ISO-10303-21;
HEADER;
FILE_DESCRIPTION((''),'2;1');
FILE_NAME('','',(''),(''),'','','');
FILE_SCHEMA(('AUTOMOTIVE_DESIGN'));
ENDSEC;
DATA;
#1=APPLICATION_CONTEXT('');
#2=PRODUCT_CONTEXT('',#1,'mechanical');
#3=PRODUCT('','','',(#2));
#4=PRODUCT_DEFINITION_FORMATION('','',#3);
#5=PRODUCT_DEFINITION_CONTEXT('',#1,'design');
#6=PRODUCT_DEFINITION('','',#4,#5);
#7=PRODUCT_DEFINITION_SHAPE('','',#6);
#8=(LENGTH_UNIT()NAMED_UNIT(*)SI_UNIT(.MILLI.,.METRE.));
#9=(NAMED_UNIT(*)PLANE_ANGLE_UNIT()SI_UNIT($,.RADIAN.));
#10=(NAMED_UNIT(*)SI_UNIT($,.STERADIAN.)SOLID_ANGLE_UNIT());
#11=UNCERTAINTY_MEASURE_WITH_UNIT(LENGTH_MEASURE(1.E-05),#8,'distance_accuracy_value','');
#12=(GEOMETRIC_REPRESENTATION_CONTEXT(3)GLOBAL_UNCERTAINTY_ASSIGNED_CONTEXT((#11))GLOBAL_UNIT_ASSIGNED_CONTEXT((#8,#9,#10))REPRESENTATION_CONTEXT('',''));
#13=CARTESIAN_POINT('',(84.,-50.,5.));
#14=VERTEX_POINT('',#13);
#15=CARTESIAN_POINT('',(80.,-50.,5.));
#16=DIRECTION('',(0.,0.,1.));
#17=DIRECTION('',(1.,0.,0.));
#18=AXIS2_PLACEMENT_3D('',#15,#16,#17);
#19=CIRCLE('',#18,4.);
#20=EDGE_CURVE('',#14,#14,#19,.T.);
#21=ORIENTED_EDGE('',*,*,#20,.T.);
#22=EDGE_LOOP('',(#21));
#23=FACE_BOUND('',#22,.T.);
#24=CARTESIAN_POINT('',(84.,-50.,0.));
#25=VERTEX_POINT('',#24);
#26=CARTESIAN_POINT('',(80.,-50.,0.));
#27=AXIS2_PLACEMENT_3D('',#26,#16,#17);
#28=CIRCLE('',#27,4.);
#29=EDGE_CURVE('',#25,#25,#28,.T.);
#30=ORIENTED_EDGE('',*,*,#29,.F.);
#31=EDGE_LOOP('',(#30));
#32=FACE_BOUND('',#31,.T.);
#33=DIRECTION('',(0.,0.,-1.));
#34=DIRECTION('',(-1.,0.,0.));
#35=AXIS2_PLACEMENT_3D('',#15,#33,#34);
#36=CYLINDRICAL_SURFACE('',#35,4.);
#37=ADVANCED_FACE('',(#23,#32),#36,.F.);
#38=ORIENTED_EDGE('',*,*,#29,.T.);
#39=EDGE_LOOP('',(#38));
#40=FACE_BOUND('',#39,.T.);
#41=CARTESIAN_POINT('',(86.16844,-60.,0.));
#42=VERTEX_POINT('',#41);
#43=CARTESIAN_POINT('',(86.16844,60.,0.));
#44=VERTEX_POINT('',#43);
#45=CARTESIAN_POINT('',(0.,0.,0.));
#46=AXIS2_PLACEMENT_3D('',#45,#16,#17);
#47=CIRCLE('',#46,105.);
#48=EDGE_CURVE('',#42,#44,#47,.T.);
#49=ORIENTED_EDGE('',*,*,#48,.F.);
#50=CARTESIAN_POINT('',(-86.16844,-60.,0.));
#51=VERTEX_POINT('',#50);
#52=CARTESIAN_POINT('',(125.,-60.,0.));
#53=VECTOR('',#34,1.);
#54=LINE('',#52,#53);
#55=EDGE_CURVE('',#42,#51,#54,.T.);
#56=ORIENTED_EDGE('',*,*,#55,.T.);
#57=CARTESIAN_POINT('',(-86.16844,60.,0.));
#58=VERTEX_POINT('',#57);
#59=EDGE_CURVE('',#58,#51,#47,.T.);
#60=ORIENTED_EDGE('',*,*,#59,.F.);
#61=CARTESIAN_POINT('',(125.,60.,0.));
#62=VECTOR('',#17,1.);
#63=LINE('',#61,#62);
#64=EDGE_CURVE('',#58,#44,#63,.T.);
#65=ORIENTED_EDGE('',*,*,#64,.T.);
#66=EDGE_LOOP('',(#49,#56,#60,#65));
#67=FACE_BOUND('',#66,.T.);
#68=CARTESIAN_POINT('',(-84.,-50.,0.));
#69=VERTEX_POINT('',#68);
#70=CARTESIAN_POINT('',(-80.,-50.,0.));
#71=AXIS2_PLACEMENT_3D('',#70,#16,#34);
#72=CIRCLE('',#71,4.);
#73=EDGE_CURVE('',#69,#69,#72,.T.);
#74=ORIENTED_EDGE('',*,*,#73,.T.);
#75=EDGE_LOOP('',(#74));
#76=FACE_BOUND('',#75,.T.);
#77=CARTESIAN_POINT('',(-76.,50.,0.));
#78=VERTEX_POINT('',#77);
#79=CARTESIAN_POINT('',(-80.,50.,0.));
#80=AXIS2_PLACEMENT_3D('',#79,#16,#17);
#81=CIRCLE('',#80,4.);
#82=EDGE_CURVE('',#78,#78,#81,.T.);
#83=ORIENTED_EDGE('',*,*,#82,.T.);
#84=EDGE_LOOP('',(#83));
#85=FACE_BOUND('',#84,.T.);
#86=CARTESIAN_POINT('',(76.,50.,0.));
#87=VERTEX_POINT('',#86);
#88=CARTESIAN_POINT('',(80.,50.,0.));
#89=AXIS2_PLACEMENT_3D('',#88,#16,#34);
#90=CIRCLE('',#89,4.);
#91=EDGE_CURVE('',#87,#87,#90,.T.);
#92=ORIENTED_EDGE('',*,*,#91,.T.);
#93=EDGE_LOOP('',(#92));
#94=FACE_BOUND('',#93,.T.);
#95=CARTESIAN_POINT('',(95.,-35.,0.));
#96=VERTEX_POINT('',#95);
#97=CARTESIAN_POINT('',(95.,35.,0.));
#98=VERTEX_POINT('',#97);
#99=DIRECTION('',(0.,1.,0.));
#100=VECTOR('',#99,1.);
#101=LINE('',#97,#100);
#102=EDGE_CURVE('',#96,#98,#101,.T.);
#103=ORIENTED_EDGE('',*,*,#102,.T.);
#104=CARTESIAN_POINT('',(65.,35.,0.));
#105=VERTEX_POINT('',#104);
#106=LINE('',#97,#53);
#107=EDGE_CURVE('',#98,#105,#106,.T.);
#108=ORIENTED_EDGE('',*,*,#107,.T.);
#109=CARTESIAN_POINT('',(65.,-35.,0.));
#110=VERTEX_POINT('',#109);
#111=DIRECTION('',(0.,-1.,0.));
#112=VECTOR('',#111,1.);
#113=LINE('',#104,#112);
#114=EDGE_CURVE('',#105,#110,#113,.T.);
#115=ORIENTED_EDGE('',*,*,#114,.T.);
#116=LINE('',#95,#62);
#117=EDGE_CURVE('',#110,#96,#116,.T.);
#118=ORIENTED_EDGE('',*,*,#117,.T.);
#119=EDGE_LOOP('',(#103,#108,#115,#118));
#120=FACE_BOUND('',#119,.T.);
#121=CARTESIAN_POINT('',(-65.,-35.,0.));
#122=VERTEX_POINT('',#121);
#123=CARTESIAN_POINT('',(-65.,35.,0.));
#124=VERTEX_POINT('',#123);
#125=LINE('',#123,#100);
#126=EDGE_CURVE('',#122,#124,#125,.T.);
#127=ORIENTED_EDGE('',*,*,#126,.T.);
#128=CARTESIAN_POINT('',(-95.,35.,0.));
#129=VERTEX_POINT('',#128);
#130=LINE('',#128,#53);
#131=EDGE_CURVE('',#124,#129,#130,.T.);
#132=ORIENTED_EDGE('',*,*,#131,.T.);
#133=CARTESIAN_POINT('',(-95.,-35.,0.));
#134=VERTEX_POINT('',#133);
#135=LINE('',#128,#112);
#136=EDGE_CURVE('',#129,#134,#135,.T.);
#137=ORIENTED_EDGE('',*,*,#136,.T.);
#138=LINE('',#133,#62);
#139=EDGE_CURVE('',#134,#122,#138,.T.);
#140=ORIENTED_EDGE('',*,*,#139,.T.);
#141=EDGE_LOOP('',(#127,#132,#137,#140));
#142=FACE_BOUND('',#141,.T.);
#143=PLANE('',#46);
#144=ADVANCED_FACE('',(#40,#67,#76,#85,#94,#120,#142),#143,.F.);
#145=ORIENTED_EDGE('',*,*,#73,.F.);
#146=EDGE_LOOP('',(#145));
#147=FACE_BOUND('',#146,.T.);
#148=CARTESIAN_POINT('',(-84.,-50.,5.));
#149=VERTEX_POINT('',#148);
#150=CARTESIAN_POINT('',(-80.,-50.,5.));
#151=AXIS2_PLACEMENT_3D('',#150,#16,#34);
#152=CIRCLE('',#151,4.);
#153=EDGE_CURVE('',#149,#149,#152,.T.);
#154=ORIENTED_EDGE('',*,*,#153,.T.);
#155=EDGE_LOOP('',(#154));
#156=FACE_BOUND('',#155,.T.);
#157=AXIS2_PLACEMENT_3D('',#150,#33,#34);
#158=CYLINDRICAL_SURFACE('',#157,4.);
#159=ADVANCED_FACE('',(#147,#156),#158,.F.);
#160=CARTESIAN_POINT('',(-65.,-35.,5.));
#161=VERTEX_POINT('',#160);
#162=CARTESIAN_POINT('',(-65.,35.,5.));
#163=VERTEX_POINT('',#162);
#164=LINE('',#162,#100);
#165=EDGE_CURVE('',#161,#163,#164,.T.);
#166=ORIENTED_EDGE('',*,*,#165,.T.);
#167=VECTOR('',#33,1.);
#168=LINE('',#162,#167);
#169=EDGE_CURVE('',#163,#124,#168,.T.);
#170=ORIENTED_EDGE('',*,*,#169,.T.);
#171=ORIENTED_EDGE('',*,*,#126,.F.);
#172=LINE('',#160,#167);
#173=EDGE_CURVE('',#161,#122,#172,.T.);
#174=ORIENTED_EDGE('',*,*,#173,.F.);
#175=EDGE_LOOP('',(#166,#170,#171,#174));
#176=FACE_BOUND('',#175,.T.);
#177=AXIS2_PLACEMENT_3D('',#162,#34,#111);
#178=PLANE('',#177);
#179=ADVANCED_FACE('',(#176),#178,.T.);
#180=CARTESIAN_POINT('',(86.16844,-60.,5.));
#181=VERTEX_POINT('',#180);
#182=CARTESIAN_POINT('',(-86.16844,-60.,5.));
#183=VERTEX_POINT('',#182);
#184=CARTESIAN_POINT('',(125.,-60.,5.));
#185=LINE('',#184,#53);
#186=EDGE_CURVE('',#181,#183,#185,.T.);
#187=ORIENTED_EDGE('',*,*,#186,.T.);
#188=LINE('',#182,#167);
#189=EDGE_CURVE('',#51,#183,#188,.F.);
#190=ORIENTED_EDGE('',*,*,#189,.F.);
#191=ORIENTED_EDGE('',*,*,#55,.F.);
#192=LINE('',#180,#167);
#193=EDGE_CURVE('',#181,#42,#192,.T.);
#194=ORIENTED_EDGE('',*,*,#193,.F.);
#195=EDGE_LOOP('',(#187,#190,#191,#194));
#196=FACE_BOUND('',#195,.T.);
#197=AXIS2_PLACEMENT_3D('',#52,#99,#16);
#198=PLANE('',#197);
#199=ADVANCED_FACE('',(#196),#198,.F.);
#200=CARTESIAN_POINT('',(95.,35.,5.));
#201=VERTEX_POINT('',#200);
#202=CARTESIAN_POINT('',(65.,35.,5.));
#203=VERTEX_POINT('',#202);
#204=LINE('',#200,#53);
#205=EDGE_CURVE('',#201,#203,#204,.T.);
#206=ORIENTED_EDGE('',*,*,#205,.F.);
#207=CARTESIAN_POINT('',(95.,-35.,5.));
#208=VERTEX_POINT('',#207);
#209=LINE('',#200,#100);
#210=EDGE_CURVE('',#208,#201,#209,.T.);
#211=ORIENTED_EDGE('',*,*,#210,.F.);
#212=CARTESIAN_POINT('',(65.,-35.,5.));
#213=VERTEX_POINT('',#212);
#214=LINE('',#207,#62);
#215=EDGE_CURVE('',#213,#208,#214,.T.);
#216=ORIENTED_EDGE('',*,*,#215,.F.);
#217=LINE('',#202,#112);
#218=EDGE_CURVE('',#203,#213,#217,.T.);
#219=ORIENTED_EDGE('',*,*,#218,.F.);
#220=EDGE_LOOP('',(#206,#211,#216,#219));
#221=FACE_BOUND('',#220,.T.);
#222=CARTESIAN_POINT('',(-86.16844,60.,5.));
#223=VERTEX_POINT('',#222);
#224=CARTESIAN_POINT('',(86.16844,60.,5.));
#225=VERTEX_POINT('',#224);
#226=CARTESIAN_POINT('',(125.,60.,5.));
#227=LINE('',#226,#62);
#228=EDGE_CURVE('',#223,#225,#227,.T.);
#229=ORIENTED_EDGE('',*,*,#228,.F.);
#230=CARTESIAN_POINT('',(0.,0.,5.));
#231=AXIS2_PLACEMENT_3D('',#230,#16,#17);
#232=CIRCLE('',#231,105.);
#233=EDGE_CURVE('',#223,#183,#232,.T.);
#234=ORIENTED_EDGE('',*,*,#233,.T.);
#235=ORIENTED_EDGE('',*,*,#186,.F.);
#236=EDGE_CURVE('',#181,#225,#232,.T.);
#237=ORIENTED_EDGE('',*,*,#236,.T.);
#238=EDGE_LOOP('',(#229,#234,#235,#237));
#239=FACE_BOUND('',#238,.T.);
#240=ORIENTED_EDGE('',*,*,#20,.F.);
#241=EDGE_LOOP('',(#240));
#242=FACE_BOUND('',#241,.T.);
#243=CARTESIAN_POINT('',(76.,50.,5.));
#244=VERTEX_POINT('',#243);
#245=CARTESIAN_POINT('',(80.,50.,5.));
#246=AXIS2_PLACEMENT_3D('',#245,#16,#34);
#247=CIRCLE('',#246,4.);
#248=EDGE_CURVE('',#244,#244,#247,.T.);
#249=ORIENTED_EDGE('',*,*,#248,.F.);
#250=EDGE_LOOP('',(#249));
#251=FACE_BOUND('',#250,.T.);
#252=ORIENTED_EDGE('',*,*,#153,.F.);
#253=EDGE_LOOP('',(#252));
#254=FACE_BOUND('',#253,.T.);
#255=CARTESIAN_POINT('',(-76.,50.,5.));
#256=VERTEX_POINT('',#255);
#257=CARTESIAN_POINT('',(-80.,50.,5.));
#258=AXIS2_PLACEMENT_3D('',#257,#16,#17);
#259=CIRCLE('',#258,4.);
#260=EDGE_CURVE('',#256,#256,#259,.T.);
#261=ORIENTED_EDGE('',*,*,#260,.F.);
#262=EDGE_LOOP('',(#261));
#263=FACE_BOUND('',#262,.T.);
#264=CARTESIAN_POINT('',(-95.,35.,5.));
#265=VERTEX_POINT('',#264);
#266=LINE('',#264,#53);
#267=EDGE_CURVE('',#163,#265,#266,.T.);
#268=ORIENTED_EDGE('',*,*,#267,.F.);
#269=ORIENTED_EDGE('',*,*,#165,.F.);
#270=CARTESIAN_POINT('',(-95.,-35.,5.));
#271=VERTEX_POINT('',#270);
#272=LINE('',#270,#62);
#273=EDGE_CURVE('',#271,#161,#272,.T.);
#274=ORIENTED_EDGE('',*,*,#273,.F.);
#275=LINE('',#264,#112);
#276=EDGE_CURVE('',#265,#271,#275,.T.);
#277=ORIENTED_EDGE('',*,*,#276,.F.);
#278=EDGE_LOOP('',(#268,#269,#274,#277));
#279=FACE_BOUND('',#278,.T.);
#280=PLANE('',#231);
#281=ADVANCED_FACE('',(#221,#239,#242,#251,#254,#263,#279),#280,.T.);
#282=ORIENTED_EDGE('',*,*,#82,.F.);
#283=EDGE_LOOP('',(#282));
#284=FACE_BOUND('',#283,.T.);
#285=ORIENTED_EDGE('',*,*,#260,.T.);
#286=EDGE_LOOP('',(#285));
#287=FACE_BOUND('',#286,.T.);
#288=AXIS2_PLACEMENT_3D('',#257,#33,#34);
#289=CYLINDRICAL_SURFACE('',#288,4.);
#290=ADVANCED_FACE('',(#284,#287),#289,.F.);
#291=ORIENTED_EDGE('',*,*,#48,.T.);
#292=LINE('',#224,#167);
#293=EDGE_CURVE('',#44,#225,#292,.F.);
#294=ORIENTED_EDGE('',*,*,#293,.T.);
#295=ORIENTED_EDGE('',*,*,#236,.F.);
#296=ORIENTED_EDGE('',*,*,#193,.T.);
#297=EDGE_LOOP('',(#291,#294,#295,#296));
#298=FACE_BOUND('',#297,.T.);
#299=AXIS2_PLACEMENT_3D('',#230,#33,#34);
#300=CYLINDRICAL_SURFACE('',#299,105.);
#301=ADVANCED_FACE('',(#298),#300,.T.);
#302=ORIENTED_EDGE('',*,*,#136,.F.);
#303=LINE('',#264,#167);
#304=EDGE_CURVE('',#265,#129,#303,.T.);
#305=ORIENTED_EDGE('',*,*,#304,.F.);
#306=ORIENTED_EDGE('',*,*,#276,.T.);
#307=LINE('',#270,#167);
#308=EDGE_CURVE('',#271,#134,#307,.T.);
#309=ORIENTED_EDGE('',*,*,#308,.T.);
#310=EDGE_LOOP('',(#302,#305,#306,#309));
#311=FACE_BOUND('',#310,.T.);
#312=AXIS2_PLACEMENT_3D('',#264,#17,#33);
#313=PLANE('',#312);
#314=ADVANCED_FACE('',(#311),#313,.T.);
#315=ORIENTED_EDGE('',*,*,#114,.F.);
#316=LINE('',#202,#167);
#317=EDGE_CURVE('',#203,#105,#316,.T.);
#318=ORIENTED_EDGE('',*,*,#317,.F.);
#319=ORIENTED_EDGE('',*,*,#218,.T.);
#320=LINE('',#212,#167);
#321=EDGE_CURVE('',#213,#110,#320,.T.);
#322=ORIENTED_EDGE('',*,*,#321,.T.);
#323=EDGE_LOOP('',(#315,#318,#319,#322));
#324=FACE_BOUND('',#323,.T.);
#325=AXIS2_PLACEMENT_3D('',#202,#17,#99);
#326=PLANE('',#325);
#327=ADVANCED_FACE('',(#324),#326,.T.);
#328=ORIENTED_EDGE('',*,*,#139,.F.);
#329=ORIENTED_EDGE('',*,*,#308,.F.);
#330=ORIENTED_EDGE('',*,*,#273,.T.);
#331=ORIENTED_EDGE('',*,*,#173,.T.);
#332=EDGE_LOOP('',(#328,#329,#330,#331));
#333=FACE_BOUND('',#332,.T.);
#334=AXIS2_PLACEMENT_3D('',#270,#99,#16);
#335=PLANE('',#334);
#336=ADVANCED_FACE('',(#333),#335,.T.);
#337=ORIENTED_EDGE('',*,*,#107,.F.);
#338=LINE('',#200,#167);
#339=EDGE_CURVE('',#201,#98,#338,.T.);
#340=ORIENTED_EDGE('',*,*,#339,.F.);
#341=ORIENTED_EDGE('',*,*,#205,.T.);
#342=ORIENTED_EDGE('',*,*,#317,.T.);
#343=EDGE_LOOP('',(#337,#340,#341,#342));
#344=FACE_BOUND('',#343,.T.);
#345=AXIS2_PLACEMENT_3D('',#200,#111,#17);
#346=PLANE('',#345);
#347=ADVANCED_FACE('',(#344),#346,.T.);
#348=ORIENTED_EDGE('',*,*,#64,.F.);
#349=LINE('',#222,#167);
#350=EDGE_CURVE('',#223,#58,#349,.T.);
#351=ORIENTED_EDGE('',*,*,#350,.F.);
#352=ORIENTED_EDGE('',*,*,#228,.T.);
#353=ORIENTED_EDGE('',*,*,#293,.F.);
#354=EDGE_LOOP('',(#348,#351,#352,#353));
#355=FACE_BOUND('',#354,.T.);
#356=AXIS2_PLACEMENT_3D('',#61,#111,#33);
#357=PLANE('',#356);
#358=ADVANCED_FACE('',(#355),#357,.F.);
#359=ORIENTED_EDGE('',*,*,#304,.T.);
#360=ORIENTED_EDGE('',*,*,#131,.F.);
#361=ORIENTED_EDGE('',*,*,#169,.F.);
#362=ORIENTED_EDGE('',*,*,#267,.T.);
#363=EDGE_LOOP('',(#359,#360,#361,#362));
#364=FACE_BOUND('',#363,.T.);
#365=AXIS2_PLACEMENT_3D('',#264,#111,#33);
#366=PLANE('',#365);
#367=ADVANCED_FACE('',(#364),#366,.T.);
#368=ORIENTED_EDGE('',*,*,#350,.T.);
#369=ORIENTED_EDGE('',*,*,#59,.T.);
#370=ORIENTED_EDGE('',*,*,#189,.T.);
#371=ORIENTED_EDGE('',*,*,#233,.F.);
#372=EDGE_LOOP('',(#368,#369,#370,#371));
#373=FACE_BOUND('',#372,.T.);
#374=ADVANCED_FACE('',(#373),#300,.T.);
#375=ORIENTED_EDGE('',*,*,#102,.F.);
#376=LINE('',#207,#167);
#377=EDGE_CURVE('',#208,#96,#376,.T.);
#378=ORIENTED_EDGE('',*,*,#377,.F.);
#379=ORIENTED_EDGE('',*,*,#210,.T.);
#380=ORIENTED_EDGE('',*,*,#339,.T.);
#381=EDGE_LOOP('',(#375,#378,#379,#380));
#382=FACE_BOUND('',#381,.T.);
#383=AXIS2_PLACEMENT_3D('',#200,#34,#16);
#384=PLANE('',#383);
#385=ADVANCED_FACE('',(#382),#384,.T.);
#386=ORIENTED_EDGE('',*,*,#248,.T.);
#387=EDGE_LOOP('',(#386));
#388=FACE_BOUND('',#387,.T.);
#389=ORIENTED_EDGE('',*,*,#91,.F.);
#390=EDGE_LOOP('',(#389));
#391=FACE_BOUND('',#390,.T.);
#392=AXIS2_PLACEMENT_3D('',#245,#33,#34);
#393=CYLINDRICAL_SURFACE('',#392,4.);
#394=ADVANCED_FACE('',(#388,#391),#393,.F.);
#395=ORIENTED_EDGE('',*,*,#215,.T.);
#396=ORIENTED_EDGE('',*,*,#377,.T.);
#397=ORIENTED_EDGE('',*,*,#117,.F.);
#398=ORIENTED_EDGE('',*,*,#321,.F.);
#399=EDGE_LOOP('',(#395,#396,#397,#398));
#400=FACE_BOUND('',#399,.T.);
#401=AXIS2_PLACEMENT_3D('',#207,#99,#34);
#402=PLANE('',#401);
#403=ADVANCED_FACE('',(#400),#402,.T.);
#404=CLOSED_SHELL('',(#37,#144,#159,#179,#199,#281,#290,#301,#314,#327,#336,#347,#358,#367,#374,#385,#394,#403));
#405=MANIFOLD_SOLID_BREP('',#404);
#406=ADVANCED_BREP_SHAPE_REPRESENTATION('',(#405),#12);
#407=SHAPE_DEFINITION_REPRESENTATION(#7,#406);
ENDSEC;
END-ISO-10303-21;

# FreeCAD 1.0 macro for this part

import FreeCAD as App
import Part
import Sketcher
from FreeCAD import Vector
Q = App.Units.Quantity

doc = App.newDocument("Part")
params = doc.addObject("Spreadsheet::Sheet", "Params")
for row, (alias, value) in enumerate([
    ("sketch1_diameter", "210 mm"),
    ("sketch1_diameter2", "8 mm"),
    ("sketch1_width", "30 mm"),
    ("sketch1_height", "70 mm"),
    ("pad1_length", "5 mm"),
    ("sketch2_width", "250 mm"),
    ("sketch2_height", "50 mm"),
], start=1):
    params.set(f"A{row}", alias)
    params.set(f"B{row}", "=" + value)
    params.setAlias(f"B{row}", alias)

body = doc.addObject("PartDesign::Body", "Body")

sketch1 = body.newObject("Sketcher::SketchObject", "Sketch")
sketch1.AttachmentSupport = (doc.getObject("XY_Plane"), [""])
sketch1.MapMode = "FlatFace"
sketch1.addGeometry(Part.Circle(Vector(0, 0, 0), Vector(0, 0, 1), 105), False)
sketch1.addGeometry(Part.Circle(Vector(-80, -50, 0), Vector(0, 0, 1), 4), False)
sketch1.addGeometry(Part.Circle(Vector(80, -50, 0), Vector(0, 0, 1), 4), False)
sketch1.addGeometry(Part.LineSegment(Vector(-65, -35, 0), Vector(-95, -35, 0)), False)
sketch1.addGeometry(Part.LineSegment(Vector(-95, -35, 0), Vector(-95, 35, 0)), False)
sketch1.addGeometry(Part.LineSegment(Vector(-95, 35, 0), Vector(-65, 35, 0)), False)
sketch1.addGeometry(Part.LineSegment(Vector(-65, 35, 0), Vector(-65, -35, 0)), False)
sketch1.addGeometry(Part.Circle(Vector(-80, 50, 0), Vector(0, 0, 1), 4), False)
sketch1.addGeometry(Part.LineSegment(Vector(95, -35, 0), Vector(65, -35, 0)), False)
sketch1.addGeometry(Part.LineSegment(Vector(65, -35, 0), Vector(65, 35, 0)), False)
sketch1.addGeometry(Part.LineSegment(Vector(65, 35, 0), Vector(95, 35, 0)), False)
sketch1.addGeometry(Part.LineSegment(Vector(95, 35, 0), Vector(95, -35, 0)), False)
sketch1.addGeometry(Part.Circle(Vector(80, 50, 0), Vector(0, 0, 1), 4), False)
sketch1.addConstraint(Sketcher.Constraint("Coincident", 3, 2, 4, 1))
sketch1.addConstraint(Sketcher.Constraint("Coincident", 4, 2, 5, 1))
sketch1.addConstraint(Sketcher.Constraint("Coincident", 5, 2, 6, 1))
sketch1.addConstraint(Sketcher.Constraint("Coincident", 6, 2, 3, 1))
sketch1.addConstraint(Sketcher.Constraint("Coincident", 8, 2, 9, 1))
sketch1.addConstraint(Sketcher.Constraint("Coincident", 9, 2, 10, 1))
sketch1.addConstraint(Sketcher.Constraint("Coincident", 10, 2, 11, 1))
sketch1.addConstraint(Sketcher.Constraint("Coincident", 11, 2, 8, 1))
sketch1.addConstraint(Sketcher.Constraint("Horizontal", 3))
sketch1.addConstraint(Sketcher.Constraint("Vertical", 4))
sketch1.addConstraint(Sketcher.Constraint("Horizontal", 5))
sketch1.addConstraint(Sketcher.Constraint("Vertical", 6))
sketch1.addConstraint(Sketcher.Constraint("Horizontal", 8))
sketch1.addConstraint(Sketcher.Constraint("Vertical", 9))
sketch1.addConstraint(Sketcher.Constraint("Horizontal", 10))
sketch1.addConstraint(Sketcher.Constraint("Vertical", 11))
sketch1.addConstraint(Sketcher.Constraint("Coincident", 0, 3, -1, 1))
sketch1.addConstraint(Sketcher.Constraint("Equal", 1, 2))
sketch1.addConstraint(Sketcher.Constraint("Equal", 2, 7))
sketch1.addConstraint(Sketcher.Constraint("Equal", 7, 12))
sketch1.addConstraint(Sketcher.Constraint("Symmetric", 2, 3, 7, 3, -1, 1))
sketch1.addConstraint(Sketcher.Constraint("Symmetric", 1, 3, 12, 3, -1, 1))
sketch1.addConstraint(Sketcher.Constraint("Symmetric", 5, 2, 8, 2, -1, 1))
sketch1.addConstraint(Sketcher.Constraint("Symmetric", 3, 2, 10, 2, -1, 1))
sketch1.addConstraint(Sketcher.Constraint("Symmetric", 1, 3, 2, 3, -2))
sketch1.addConstraint(Sketcher.Constraint("Horizontal", 6, 2, 8, 2))
sketch1.addConstraint(Sketcher.Constraint("Diameter", 0, Q("210 mm")))
sketch1.addConstraint(Sketcher.Constraint("Diameter", 1, Q("8 mm")))
sketch1.addConstraint(Sketcher.Constraint("DistanceX", 3, 2, 3, 1, Q("30 mm")))
sketch1.addConstraint(Sketcher.Constraint("DistanceY", 4, 1, 4, 2, Q("70 mm")))
sketch1.addConstraint(Sketcher.Constraint("DistanceX", 1, 3, -1, 1, Q("80 mm")))
sketch1.addConstraint(Sketcher.Constraint("DistanceY", 1, 3, -1, 1, Q("50 mm")))
sketch1.addConstraint(Sketcher.Constraint("DistanceX", 3, 2, -1, 1, Q("95 mm")))
sketch1.setExpression("Constraints[26]", "Params.sketch1_diameter")
sketch1.setExpression("Constraints[27]", "Params.sketch1_diameter2")
sketch1.setExpression("Constraints[28]", "Params.sketch1_width")
sketch1.setExpression("Constraints[29]", "Params.sketch1_height")
pad1 = body.newObject("PartDesign::Pad", "Pad")
pad1.Profile = sketch1
pad1.setExpression("Length", "Params.pad1_length")

sketch2 = body.newObject("Sketcher::SketchObject", "Sketch001")
sketch2.AttachmentSupport = (doc.getObject("XY_Plane"), [""])
sketch2.MapMode = "FlatFace"
sketch2.AttachmentOffset = App.Placement(Vector(0, 0, 5), App.Rotation())
sketch2.addGeometry(Part.LineSegment(Vector(-125, 110, 0), Vector(-125, 60, 0)), False)
sketch2.addGeometry(Part.LineSegment(Vector(-125, 60, 0), Vector(125, 60, 0)), False)
sketch2.addGeometry(Part.LineSegment(Vector(125, 60, 0), Vector(125, 110, 0)), False)
sketch2.addGeometry(Part.LineSegment(Vector(125, 110, 0), Vector(-125, 110, 0)), False)
sketch2.addGeometry(Part.LineSegment(Vector(-125, -60, 0), Vector(-125, -110, 0)), False)
sketch2.addGeometry(Part.LineSegment(Vector(-125, -110, 0), Vector(125, -110, 0)), False)
sketch2.addGeometry(Part.LineSegment(Vector(125, -110, 0), Vector(125, -60, 0)), False)
sketch2.addGeometry(Part.LineSegment(Vector(125, -60, 0), Vector(-125, -60, 0)), False)
sketch2.addConstraint(Sketcher.Constraint("Coincident", 0, 2, 1, 1))
sketch2.addConstraint(Sketcher.Constraint("Coincident", 1, 2, 2, 1))
sketch2.addConstraint(Sketcher.Constraint("Coincident", 2, 2, 3, 1))
sketch2.addConstraint(Sketcher.Constraint("Coincident", 3, 2, 0, 1))
sketch2.addConstraint(Sketcher.Constraint("Coincident", 4, 2, 5, 1))
sketch2.addConstraint(Sketcher.Constraint("Coincident", 5, 2, 6, 1))
sketch2.addConstraint(Sketcher.Constraint("Coincident", 6, 2, 7, 1))
sketch2.addConstraint(Sketcher.Constraint("Coincident", 7, 2, 4, 1))
sketch2.addConstraint(Sketcher.Constraint("Vertical", 0))
sketch2.addConstraint(Sketcher.Constraint("Horizontal", 1))
sketch2.addConstraint(Sketcher.Constraint("Vertical", 2))
sketch2.addConstraint(Sketcher.Constraint("Horizontal", 3))
sketch2.addConstraint(Sketcher.Constraint("Vertical", 4))
sketch2.addConstraint(Sketcher.Constraint("Horizontal", 5))
sketch2.addConstraint(Sketcher.Constraint("Vertical", 6))
sketch2.addConstraint(Sketcher.Constraint("Horizontal", 7))
sketch2.addConstraint(Sketcher.Constraint("Symmetric", 2, 2, 4, 2, -1, 1))
sketch2.addConstraint(Sketcher.Constraint("Symmetric", 0, 2, 6, 2, -1, 1))
sketch2.addConstraint(Sketcher.Constraint("Vertical", 3, 2, 4, 2))
sketch2.addConstraint(Sketcher.Constraint("DistanceX", 1, 1, 1, 2, Q("250 mm")))
sketch2.addConstraint(Sketcher.Constraint("DistanceY", 0, 2, 0, 1, Q("50 mm")))
sketch2.addConstraint(Sketcher.Constraint("DistanceY", -1, 1, 0, 2, Q("60 mm")))
sketch2.setExpression("Constraints[19]", "Params.sketch2_width")
sketch2.setExpression("Constraints[20]", "Params.sketch2_height")
pocket1 = body.newObject("PartDesign::Pocket", "Pocket")
pocket1.Profile = sketch2
pocket1.Type = "ThroughAll"

doc.recompute()
